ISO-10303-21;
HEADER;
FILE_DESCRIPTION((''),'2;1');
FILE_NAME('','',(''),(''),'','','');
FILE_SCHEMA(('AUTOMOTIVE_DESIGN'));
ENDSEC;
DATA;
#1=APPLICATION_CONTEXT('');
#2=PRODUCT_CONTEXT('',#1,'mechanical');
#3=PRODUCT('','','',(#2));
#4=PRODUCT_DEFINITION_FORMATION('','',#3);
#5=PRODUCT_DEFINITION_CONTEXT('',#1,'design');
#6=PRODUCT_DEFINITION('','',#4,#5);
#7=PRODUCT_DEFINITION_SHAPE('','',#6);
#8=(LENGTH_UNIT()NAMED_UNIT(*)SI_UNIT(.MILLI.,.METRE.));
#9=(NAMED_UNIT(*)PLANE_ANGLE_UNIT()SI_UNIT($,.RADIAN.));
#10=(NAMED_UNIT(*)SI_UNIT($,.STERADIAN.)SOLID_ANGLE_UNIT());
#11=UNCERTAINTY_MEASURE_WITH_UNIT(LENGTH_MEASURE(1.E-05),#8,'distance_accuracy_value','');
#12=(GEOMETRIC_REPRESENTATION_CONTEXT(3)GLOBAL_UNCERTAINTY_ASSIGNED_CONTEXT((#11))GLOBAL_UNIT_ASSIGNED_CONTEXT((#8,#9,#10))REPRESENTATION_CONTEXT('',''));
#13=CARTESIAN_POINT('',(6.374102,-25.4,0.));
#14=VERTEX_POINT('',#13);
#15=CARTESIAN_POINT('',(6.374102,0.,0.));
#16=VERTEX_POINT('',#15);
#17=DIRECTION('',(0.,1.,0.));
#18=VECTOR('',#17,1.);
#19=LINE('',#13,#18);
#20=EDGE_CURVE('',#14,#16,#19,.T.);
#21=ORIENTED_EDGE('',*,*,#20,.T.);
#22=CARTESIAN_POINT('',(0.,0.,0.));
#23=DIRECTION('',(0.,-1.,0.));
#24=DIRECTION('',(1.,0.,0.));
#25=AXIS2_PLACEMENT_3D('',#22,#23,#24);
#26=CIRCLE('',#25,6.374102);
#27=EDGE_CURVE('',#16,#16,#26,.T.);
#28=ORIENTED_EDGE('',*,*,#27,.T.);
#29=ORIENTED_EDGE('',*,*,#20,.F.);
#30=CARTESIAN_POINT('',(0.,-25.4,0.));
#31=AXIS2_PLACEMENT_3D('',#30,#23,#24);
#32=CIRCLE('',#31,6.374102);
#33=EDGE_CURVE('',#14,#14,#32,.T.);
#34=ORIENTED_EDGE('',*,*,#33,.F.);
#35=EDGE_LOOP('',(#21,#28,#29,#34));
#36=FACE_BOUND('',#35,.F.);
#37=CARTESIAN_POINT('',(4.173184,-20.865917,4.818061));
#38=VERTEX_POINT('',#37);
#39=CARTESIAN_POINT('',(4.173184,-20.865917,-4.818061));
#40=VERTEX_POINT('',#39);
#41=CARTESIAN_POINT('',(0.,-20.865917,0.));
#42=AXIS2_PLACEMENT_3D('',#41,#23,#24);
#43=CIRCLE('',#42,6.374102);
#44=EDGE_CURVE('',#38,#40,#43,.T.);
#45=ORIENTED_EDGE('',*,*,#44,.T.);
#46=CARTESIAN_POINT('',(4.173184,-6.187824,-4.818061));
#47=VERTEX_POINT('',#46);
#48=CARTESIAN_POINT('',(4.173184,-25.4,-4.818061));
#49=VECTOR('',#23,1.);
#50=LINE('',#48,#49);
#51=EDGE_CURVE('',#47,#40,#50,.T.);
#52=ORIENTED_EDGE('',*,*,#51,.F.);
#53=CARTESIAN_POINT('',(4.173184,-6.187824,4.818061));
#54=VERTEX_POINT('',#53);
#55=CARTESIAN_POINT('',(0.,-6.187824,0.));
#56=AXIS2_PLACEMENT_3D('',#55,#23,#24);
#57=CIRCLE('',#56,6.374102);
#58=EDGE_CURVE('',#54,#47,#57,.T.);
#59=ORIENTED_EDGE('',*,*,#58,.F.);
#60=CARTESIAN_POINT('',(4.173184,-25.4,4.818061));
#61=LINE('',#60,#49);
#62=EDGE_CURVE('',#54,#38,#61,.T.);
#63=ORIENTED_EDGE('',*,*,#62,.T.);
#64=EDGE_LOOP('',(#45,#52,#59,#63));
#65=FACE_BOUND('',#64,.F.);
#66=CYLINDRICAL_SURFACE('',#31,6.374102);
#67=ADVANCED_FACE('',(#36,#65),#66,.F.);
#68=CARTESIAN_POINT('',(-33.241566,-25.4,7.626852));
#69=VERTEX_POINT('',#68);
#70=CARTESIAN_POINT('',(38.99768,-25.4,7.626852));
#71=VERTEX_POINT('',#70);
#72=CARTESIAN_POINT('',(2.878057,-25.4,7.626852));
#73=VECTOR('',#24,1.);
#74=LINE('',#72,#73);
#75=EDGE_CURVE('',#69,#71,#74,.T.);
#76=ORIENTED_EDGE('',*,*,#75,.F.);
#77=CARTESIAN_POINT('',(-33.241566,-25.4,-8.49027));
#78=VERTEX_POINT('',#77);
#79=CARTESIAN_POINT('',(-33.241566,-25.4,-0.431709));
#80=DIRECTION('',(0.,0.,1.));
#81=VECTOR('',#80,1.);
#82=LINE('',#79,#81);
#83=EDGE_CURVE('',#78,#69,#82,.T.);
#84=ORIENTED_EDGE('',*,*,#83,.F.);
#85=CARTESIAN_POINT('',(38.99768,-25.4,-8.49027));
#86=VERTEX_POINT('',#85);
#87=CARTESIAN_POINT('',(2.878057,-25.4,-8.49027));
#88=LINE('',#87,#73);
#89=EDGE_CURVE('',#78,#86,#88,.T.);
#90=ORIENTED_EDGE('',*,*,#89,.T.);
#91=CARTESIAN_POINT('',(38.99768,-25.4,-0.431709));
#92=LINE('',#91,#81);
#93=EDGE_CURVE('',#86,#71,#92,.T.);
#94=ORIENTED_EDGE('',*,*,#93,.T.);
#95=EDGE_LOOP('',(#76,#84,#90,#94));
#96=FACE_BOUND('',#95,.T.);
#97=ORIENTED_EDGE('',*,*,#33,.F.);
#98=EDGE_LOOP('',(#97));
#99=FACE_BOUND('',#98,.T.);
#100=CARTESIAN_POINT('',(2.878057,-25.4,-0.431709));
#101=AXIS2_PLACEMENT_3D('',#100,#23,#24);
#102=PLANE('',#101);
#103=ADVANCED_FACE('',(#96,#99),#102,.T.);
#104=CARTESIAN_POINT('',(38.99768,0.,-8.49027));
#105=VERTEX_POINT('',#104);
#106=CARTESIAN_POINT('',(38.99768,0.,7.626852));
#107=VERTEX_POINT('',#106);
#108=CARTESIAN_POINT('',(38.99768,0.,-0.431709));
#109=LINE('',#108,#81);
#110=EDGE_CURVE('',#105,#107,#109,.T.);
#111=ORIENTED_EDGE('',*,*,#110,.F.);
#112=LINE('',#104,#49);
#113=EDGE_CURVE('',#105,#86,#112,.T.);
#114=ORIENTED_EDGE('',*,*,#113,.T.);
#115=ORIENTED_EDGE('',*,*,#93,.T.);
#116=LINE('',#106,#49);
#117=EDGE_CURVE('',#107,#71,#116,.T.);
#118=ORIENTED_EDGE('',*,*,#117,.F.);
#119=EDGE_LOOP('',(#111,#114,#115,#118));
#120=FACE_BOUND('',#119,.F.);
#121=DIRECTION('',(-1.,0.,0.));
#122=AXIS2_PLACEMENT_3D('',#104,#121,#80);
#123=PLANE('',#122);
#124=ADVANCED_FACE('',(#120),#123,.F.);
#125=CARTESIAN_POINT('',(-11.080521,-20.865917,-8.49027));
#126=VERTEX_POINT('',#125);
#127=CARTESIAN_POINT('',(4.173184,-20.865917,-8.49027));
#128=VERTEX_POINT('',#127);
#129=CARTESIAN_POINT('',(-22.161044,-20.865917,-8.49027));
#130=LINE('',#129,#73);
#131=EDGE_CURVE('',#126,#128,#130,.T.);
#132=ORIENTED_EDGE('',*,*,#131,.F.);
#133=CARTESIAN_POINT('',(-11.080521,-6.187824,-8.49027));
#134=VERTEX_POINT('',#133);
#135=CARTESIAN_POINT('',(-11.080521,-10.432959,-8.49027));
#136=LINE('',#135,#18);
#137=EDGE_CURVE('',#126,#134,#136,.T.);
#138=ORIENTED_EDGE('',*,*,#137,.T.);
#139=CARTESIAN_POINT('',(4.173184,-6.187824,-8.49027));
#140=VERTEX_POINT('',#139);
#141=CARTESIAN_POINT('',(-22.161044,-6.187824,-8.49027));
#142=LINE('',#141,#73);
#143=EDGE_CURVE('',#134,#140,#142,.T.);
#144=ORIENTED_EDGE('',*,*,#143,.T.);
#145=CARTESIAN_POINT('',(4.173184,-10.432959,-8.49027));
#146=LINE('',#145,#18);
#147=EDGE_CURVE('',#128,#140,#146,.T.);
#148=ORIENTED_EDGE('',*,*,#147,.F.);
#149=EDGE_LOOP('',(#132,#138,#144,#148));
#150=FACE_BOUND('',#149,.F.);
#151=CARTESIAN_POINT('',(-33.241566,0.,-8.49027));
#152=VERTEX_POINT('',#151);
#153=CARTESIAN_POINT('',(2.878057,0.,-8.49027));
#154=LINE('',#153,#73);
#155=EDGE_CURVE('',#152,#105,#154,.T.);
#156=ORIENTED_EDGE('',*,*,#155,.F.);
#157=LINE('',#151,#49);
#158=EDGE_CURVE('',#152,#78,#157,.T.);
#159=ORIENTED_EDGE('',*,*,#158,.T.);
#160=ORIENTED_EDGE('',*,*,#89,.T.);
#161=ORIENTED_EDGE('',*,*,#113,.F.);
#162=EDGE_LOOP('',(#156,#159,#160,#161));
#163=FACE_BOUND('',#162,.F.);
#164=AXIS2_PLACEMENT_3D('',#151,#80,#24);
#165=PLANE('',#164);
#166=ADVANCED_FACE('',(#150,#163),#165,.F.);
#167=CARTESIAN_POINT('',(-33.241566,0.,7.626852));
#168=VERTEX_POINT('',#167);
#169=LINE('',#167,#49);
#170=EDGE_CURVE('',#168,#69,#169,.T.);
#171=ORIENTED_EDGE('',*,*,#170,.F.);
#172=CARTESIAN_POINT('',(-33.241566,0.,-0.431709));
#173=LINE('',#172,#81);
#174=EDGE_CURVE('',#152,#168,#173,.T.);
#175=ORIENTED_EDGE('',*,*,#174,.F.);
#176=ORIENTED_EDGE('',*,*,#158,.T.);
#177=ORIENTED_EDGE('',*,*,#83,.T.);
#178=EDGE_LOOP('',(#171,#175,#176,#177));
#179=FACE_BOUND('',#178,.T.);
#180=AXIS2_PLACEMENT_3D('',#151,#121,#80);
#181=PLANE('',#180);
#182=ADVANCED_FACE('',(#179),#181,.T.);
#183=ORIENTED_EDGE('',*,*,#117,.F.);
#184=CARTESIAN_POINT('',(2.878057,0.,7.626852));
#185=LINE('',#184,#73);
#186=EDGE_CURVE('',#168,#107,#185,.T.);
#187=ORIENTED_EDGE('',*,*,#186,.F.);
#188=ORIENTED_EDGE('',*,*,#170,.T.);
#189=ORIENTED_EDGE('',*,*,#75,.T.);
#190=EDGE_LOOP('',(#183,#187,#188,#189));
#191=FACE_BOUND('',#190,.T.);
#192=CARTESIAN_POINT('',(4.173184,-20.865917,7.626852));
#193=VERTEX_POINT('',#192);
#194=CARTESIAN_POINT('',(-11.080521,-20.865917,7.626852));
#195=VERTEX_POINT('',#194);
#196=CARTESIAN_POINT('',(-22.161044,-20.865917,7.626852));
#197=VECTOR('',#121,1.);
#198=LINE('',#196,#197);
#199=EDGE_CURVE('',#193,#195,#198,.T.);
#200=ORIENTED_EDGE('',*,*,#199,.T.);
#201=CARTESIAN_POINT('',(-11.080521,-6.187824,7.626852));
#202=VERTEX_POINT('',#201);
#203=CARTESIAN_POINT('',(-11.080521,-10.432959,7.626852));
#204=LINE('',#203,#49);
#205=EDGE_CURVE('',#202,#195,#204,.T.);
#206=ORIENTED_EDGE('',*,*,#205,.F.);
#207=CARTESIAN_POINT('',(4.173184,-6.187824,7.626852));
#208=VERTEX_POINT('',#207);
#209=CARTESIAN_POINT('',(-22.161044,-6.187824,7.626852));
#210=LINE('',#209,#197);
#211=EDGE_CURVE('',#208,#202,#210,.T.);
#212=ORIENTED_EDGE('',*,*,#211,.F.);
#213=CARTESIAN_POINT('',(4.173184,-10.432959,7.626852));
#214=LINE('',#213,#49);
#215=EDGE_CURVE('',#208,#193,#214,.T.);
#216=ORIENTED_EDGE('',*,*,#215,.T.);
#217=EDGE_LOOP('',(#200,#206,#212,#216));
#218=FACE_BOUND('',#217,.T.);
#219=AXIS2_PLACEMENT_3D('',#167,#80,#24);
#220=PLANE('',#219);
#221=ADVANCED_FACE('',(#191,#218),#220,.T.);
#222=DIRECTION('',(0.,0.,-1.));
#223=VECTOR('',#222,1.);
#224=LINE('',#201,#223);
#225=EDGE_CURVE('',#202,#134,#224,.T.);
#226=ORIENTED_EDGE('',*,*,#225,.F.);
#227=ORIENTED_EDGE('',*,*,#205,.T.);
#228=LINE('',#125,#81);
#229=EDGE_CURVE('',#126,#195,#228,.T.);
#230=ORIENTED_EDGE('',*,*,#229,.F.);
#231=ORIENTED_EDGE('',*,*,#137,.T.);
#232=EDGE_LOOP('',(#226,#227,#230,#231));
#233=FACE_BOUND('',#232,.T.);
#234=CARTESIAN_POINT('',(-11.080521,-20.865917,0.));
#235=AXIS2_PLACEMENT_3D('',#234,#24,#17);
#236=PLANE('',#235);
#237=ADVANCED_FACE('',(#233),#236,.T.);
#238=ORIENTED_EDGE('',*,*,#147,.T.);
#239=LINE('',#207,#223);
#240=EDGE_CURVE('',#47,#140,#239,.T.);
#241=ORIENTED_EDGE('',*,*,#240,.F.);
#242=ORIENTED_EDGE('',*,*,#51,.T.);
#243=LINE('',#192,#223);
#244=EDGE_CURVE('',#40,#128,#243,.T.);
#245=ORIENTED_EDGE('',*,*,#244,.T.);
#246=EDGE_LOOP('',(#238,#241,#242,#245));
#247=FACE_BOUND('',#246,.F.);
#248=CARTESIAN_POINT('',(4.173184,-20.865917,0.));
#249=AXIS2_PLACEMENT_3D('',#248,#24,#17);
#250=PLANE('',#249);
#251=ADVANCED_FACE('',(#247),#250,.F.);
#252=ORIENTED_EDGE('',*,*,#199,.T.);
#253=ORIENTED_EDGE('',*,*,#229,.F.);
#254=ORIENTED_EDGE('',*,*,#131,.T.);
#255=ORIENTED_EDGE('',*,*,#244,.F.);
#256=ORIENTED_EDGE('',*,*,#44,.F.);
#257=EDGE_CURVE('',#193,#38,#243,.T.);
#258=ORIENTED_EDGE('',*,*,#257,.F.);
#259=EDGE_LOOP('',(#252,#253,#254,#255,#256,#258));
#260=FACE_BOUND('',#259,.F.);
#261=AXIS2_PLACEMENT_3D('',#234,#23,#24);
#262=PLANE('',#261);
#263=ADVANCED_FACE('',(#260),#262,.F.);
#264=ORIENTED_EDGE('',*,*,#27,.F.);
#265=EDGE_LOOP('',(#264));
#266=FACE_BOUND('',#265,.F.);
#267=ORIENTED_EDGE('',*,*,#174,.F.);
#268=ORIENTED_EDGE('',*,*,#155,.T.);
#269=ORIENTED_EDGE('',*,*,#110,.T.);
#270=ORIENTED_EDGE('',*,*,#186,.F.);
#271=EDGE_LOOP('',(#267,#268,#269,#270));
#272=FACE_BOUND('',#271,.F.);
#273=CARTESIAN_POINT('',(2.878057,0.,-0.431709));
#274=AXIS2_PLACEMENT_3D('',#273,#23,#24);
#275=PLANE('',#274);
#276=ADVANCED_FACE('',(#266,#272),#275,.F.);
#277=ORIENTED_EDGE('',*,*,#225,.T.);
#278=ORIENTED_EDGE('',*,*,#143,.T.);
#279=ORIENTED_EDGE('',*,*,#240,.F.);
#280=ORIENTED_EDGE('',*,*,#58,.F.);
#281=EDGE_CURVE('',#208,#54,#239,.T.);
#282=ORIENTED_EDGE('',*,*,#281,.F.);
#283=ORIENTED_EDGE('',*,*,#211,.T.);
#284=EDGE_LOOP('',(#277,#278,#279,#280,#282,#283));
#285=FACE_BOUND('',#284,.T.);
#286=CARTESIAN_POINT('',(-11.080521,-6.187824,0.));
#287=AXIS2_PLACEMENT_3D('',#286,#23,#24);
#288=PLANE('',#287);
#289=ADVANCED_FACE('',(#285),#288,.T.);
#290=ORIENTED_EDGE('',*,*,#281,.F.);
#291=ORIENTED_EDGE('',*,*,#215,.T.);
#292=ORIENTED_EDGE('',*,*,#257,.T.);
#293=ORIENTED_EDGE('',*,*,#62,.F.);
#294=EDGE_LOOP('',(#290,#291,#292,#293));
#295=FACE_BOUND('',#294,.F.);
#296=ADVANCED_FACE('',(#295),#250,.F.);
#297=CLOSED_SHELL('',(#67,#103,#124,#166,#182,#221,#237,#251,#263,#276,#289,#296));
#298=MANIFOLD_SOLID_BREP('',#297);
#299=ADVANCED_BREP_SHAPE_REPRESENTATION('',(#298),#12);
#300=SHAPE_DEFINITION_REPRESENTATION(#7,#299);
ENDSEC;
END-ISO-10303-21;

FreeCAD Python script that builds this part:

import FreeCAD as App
import Part
import Sketcher
from FreeCAD import Vector
Q = App.Units.Quantity

doc = App.newDocument("Part")
params = doc.addObject("Spreadsheet::Sheet", "Params")
for row, (alias, value) in enumerate([
    ("pad1_length", "1 in"),
], start=1):
    params.set(f"A{row}", alias)
    params.set(f"B{row}", "=" + value)
    params.setAlias(f"B{row}", alias)

body = doc.addObject("PartDesign::Body", "Body")

# Sketch on XZ plane
sketch1 = body.newObject("Sketcher::SketchObject", "Sketch")
sketch1.AttachmentSupport = (doc.getObject("XZ_Plane"), [""])
sketch1.MapMode = "FlatFace"
sketch1.addGeometry(Part.LineSegment(Vector(-33, 8, 0), Vector(-33, -8, 0)), False)
sketch1.addGeometry(Part.LineSegment(Vector(-33, -8, 0), Vector(39, -8, 0)), False)
sketch1.addGeometry(Part.LineSegment(Vector(39, -8, 0), Vector(39, 8, 0)), False)
sketch1.addGeometry(Part.LineSegment(Vector(39, 8, 0), Vector(-33, 8, 0)), False)
sketch1.addConstraint(Sketcher.Constraint("Coincident", 0, 2, 1, 1))
sketch1.addConstraint(Sketcher.Constraint("Coincident", 1, 2, 2, 1))
sketch1.addConstraint(Sketcher.Constraint("Coincident", 2, 2, 3, 1))
sketch1.addConstraint(Sketcher.Constraint("Coincident", 3, 2, 0, 1))
sketch1.addConstraint(Sketcher.Constraint("Vertical", 0))
sketch1.addConstraint(Sketcher.Constraint("Horizontal", 1))
sketch1.addConstraint(Sketcher.Constraint("Vertical", 2))
sketch1.addConstraint(Sketcher.Constraint("Horizontal", 3))
sketch1.addConstraint(Sketcher.Constraint("DistanceX", 1, 1, 1, 2, Q("72.239246 mm")))
sketch1.addConstraint(Sketcher.Constraint("DistanceY", 0, 2, 0, 1, Q("16.117122 mm")))
sketch1.addConstraint(Sketcher.Constraint("DistanceY", 0, 2, -1, 1, Q("8.49027 mm")))
sketch1.addConstraint(Sketcher.Constraint("DistanceX", -1, 1, 1, 2, Q("38.99768 mm")))
pad1 = body.newObject("PartDesign::Pad", "Pad")
pad1.Profile = sketch1
pad1.setExpression("Length", "Params.pad1_length")

# Sketch on XY plane
sketch2 = body.newObject("Sketcher::SketchObject", "Sketch001")
sketch2.AttachmentSupport = (doc.getObject("XY_Plane"), [""])
sketch2.MapMode = "FlatFace"
sketch2.addGeometry(Part.LineSegment(Vector(-11, -6, 0), Vector(-11, -21, 0)), False)
sketch2.addGeometry(Part.LineSegment(Vector(-11, -21, 0), Vector(4, -21, 0)), False)
sketch2.addGeometry(Part.LineSegment(Vector(4, -21, 0), Vector(4, -6, 0)), False)
sketch2.addGeometry(Part.LineSegment(Vector(4, -6, 0), Vector(-11, -6, 0)), False)
sketch2.addConstraint(Sketcher.Constraint("Coincident", 0, 2, 1, 1))
sketch2.addConstraint(Sketcher.Constraint("Coincident", 1, 2, 2, 1))
sketch2.addConstraint(Sketcher.Constraint("Coincident", 2, 2, 3, 1))
sketch2.addConstraint(Sketcher.Constraint("Coincident", 3, 2, 0, 1))
sketch2.addConstraint(Sketcher.Constraint("Vertical", 0))
sketch2.addConstraint(Sketcher.Constraint("Horizontal", 1))
sketch2.addConstraint(Sketcher.Constraint("Vertical", 2))
sketch2.addConstraint(Sketcher.Constraint("Horizontal", 3))
sketch2.addConstraint(Sketcher.Constraint("DistanceX", 1, 1, 1, 2, Q("15.253705 mm")))
sketch2.addConstraint(Sketcher.Constraint("DistanceY", 0, 2, 0, 1, Q("14.678094 mm")))
sketch2.addConstraint(Sketcher.Constraint("DistanceX", 0, 2, -1, 1, Q("11.080521 mm")))
sketch2.addConstraint(Sketcher.Constraint("DistanceY", 0, 2, -1, 1, Q("20.865917 mm")))
pocket1 = body.newObject("PartDesign::Pocket", "Pocket")
pocket1.Profile = sketch2
pocket1.Type = "ThroughAll"
pocket1.Midplane = True

# Sketch on XZ plane
sketch3 = body.newObject("Sketcher::SketchObject", "Sketch002")
sketch3.AttachmentSupport = (doc.getObject("XZ_Plane"), [""])
sketch3.MapMode = "FlatFace"
sketch3.AttachmentOffset = App.Placement(Vector(0, 0, 1 * 25.4), App.Rotation())
sketch3.addGeometry(Part.Circle(Vector(0, 0, 0), Vector(0, 0, 1), 6), False)
sketch3.addConstraint(Sketcher.Constraint("Coincident", 0, 3, -1, 1))
sketch3.addConstraint(Sketcher.Constraint("Diameter", 0, Q("12.748204 mm")))
pocket2 = body.newObject("PartDesign::Pocket", "Pocket001")
pocket2.Profile = sketch3
pocket2.Type = "ThroughAll"

doc.recompute()
